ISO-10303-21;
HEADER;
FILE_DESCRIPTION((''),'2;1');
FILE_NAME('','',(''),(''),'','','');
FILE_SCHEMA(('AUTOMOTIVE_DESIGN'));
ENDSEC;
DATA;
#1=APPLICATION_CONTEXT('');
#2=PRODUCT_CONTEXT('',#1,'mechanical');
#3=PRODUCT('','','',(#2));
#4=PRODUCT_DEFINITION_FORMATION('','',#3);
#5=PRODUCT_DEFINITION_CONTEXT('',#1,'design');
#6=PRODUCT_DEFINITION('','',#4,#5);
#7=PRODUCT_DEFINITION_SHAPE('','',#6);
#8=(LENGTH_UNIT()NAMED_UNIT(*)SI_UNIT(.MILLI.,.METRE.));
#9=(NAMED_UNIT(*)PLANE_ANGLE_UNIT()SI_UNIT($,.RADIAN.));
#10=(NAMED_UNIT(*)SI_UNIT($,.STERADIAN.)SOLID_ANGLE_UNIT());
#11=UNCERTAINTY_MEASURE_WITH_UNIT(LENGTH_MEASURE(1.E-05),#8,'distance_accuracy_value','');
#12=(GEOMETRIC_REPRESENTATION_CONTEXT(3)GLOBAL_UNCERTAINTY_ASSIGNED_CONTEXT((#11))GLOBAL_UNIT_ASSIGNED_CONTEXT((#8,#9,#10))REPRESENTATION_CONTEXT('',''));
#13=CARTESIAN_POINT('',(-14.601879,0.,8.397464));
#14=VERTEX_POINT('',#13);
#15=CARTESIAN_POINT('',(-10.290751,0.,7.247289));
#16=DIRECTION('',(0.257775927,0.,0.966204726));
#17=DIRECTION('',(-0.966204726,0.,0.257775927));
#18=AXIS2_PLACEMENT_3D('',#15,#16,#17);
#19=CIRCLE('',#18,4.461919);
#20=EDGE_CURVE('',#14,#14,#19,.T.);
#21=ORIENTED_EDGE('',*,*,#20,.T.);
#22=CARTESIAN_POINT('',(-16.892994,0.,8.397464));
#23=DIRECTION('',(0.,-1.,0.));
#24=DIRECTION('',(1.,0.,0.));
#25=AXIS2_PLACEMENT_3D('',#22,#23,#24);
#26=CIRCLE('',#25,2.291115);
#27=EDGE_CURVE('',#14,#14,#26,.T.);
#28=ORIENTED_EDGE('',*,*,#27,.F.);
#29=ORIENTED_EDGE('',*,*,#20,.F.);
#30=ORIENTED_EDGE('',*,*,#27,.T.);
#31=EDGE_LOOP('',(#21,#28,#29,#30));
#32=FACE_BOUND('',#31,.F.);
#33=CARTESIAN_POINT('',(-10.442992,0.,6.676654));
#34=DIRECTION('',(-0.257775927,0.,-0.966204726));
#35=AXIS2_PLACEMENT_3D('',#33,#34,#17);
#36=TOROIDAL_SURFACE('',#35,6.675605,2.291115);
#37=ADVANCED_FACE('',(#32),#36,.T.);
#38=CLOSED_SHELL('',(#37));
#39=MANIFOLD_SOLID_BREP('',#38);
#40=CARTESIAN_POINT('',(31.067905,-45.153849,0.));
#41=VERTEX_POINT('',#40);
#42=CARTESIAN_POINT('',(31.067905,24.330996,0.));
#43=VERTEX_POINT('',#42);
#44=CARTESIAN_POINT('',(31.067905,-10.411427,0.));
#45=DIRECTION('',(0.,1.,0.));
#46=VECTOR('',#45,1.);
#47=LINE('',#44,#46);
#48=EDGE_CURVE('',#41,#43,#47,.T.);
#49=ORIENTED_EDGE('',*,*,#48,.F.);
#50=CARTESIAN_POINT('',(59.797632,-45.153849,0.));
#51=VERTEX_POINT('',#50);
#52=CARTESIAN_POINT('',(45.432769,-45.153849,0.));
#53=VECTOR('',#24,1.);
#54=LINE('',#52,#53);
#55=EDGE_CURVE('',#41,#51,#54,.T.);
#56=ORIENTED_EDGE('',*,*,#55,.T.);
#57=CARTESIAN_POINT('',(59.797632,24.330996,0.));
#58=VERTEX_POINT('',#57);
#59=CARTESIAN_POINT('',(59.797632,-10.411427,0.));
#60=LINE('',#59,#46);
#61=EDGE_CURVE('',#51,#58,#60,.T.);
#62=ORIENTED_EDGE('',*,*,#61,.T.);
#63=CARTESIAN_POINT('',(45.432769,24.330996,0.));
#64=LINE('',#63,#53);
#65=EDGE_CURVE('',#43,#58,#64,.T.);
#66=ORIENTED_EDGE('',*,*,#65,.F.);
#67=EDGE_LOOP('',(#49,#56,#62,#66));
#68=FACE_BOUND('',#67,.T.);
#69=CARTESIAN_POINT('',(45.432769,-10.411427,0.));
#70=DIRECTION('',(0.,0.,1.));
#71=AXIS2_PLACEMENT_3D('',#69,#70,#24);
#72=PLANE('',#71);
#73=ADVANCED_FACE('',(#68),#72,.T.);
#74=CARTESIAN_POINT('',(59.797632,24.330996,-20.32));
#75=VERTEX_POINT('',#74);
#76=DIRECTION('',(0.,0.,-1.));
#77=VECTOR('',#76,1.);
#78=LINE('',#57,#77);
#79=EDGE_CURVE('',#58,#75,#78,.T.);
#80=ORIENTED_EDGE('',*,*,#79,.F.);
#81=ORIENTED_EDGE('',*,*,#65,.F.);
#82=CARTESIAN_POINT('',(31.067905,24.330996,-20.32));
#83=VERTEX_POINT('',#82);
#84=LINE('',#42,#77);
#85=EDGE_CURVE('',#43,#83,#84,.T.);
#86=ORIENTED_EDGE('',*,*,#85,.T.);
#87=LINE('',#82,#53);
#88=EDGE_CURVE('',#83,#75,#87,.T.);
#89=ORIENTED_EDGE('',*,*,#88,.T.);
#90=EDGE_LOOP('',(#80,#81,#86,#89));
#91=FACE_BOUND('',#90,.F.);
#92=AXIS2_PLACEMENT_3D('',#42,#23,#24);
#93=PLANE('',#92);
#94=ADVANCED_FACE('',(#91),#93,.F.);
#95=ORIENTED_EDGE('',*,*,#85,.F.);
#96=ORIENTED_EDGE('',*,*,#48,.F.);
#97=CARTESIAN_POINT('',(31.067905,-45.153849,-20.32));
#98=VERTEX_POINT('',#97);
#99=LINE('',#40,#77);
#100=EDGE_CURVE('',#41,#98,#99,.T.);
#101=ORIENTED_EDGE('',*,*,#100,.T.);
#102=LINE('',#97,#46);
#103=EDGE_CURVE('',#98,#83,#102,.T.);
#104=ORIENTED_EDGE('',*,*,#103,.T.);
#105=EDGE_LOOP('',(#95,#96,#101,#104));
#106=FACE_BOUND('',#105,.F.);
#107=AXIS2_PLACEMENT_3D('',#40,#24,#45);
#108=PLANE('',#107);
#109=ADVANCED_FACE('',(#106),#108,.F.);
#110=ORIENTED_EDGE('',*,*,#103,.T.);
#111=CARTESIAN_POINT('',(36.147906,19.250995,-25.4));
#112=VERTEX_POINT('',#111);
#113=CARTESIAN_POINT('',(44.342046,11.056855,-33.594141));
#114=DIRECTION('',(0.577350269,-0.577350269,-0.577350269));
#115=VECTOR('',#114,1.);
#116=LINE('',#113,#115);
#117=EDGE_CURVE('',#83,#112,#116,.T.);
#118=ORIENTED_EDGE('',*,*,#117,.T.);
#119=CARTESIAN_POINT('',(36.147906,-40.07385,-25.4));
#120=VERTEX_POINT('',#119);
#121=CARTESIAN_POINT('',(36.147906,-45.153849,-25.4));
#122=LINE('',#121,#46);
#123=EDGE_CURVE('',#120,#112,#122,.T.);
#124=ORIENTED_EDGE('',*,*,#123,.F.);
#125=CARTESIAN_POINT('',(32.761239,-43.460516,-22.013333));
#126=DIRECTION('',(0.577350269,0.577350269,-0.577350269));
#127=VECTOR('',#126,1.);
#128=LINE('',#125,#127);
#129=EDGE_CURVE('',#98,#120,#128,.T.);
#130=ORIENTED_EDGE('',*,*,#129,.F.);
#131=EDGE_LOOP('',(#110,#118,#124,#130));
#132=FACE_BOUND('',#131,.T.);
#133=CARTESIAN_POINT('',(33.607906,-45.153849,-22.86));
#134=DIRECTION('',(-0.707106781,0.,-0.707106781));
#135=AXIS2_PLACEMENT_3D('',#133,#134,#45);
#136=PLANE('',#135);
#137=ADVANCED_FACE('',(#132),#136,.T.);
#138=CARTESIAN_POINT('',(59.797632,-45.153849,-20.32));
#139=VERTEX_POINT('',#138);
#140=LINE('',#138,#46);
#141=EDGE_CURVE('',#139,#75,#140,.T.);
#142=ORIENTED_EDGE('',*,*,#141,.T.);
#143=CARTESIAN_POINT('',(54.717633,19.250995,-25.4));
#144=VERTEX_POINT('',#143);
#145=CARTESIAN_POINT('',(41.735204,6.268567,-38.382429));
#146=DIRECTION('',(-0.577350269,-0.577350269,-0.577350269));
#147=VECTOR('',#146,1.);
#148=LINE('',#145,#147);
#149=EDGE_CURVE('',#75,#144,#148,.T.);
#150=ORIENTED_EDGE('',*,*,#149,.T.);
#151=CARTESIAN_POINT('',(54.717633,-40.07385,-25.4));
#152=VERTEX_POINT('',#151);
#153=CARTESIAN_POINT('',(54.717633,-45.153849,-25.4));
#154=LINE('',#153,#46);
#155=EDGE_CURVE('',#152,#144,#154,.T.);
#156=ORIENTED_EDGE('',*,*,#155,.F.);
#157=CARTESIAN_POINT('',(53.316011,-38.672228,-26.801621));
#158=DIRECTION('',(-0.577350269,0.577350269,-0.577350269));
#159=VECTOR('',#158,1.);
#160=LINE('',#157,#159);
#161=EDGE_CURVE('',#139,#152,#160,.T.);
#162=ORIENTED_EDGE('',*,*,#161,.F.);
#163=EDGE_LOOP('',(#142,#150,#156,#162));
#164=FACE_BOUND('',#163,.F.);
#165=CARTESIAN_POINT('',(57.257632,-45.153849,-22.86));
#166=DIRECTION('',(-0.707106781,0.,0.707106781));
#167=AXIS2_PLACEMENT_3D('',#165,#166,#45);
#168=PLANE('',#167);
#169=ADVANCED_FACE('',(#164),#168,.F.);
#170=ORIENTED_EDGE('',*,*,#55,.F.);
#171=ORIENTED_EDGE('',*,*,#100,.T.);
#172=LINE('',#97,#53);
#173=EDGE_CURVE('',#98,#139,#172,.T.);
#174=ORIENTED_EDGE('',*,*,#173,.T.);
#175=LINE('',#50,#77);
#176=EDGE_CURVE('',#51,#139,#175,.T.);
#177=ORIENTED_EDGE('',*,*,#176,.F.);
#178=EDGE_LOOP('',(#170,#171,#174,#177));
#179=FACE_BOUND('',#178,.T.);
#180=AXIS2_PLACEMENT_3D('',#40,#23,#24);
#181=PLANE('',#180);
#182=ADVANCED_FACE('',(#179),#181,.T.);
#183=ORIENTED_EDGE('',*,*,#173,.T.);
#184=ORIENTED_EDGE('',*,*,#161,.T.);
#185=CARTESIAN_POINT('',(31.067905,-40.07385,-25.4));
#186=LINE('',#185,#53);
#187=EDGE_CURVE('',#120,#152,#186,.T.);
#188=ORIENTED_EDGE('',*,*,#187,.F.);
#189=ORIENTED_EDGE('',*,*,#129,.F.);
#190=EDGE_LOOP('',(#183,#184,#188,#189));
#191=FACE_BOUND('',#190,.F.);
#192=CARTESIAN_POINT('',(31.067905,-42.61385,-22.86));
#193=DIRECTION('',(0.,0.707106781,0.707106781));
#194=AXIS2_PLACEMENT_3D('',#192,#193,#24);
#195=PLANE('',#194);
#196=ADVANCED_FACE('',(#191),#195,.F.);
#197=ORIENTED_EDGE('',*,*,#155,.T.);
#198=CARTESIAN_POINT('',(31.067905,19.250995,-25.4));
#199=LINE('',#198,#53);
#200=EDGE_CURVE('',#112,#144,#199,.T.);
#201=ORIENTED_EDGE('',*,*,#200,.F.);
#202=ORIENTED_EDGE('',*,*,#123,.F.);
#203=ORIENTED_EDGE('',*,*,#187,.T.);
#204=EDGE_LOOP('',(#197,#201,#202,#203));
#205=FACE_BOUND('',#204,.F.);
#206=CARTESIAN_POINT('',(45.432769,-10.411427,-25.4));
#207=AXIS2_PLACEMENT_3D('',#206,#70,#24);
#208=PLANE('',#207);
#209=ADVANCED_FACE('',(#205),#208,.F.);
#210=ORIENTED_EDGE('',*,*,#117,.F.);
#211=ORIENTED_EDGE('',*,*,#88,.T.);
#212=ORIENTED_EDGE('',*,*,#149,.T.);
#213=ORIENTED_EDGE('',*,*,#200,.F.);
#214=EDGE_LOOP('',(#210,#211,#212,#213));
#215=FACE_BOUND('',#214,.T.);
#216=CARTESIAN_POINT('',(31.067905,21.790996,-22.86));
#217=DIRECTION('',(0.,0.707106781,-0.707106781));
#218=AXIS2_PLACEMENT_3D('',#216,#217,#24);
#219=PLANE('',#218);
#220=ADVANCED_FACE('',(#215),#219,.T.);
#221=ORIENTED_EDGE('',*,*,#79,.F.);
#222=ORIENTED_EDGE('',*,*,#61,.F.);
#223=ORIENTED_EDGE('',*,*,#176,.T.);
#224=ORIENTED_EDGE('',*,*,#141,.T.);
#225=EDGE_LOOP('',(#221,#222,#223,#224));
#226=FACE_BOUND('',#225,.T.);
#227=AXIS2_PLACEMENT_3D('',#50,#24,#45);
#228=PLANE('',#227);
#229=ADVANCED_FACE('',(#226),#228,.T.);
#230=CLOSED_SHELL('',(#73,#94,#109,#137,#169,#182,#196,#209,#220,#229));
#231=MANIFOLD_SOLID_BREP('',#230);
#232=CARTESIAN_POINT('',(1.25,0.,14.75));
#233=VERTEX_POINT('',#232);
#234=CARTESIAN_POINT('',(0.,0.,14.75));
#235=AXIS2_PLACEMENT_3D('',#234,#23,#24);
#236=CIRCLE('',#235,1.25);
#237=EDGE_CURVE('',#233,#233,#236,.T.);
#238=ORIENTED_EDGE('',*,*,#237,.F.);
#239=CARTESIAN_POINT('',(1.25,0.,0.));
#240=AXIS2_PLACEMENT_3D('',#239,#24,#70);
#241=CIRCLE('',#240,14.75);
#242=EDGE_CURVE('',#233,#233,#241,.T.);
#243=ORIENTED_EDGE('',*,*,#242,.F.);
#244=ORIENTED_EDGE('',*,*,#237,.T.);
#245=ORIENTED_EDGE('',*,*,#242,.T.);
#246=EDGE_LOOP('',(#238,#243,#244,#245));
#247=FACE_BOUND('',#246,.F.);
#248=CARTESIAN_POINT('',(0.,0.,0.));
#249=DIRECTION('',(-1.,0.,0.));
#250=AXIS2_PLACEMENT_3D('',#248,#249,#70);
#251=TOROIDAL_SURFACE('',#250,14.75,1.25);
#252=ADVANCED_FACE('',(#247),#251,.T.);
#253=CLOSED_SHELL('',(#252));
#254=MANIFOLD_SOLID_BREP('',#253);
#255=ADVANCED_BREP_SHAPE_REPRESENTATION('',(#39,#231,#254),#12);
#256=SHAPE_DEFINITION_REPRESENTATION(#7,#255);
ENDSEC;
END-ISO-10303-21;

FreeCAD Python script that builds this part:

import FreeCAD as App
import Part
import Sketcher
Q = App.Units.Quantity


def edges_at(feature, points):
    """Names of the edges that pass closest to the given points."""
    edges = feature.Shape.Edges
    near = lambda p: min(range(len(edges)), key=lambda i: edges[i].distToShape(Part.Vertex(*p))[0])
    return sorted({f"Edge{near(p) + 1}" for p in points})

doc = App.newDocument("Part")
body = doc.addObject("PartDesign::Body", "Body")

# Sketch on XZ plane
sketch1 = doc.addObject("Sketcher::SketchObject", "Sketch")
body.addObject(sketch1)
sketch1.AttachmentSupport = (doc.XZ_Plane, [""])
sketch1.MapMode = "FlatFace"
sketch1.addGeometry(Part.Circle(App.Vector(0, 14.8, 0), App.Vector(0, 0, 1), 1.2), False)
sketch1.addConstraint(Sketcher.Constraint("PointOnObject", 0, 3, -2))
sketch1.addConstraint(Sketcher.Constraint("Diameter", 0, Q("2.5 mm")))
sketch1.addConstraint(Sketcher.Constraint("DistanceY", -1, 1, 0, 3, Q("14.75 mm")))
revolution = doc.addObject("PartDesign::Revolution", "Revolution")
body.addObject(revolution)
revolution.Profile = sketch1
revolution.ReferenceAxis = (sketch1, ["H_Axis"])
revolution.Angle = 360
body2 = doc.addObject("PartDesign::Body", "Body001")

# Sketch on XZ plane
sketch2 = doc.addObject("Sketcher::SketchObject", "Sketch001")
body2.addObject(sketch2)
sketch2.AttachmentSupport = (doc.getObject("XZ_Plane001"), [""])
sketch2.MapMode = "FlatFace"
sketch2.addGeometry(Part.Circle(App.Vector(-16.9, 8.4, 0), App.Vector(0, 0, 1), 2.3), False)
sketch2.addGeometry(Part.LineSegment(App.Vector(-10.4, 6.7, 0), App.Vector(-7.9, 16.3, 0)), True)  # axis
sketch2.addConstraint(Sketcher.Constraint("Diameter", 0, Q("4.58223 mm")))
sketch2.addConstraint(Sketcher.Constraint("Distance", 1, Q("10 mm")))
sketch2.addConstraint(Sketcher.Constraint("DistanceY", -1, 1, 1, 2, Q("16.338701 mm")))
sketch2.addConstraint(Sketcher.Constraint("DistanceX", 0, 3, 1, 1, Q("6.450002 mm")))
sketch2.addConstraint(Sketcher.Constraint("DistanceY", 1, 1, 0, 3, Q("1.72081 mm")))
sketch2.addConstraint(Sketcher.Constraint("DistanceX", 1, 1, 1, 2, Q("2.577759 mm")))
sketch2.addConstraint(Sketcher.Constraint("DistanceX", 0, 3, -1, 1, Q("16.892994 mm")))
revolution2 = doc.addObject("PartDesign::Revolution", "Revolution001")
body2.addObject(revolution2)
revolution2.Profile = sketch2
revolution2.ReferenceAxis = (sketch2, ["Axis0"])
revolution2.Angle = 360
body3 = doc.addObject("PartDesign::Body", "Body002")

# Sketch on XY plane
sketch3 = doc.addObject("Sketcher::SketchObject", "Sketch002")
body3.addObject(sketch3)
sketch3.AttachmentSupport = (doc.getObject("XY_Plane002"), [""])
sketch3.MapMode = "FlatFace"
sketch3.addGeometry(Part.LineSegment(App.Vector(31, 24, 0), App.Vector(31, -45, 0)), False)
sketch3.addGeometry(Part.LineSegment(App.Vector(31, -45, 0), App.Vector(60, -45, 0)), False)
sketch3.addGeometry(Part.LineSegment(App.Vector(60, -45, 0), App.Vector(60, 24, 0)), False)
sketch3.addGeometry(Part.LineSegment(App.Vector(60, 24, 0), App.Vector(31, 24, 0)), False)
sketch3.addConstraint(Sketcher.Constraint("Coincident", 0, 2, 1, 1))
sketch3.addConstraint(Sketcher.Constraint("Coincident", 1, 2, 2, 1))
sketch3.addConstraint(Sketcher.Constraint("Coincident", 2, 2, 3, 1))
sketch3.addConstraint(Sketcher.Constraint("Coincident", 3, 2, 0, 1))
sketch3.addConstraint(Sketcher.Constraint("Vertical", 0))
sketch3.addConstraint(Sketcher.Constraint("Horizontal", 1))
sketch3.addConstraint(Sketcher.Constraint("Vertical", 2))
sketch3.addConstraint(Sketcher.Constraint("Horizontal", 3))
sketch3.addConstraint(Sketcher.Constraint("DistanceX", 1, 1, 1, 2, Q("28.729727 mm")))
sketch3.addConstraint(Sketcher.Constraint("DistanceY", 0, 2, 0, 1, Q("69.484845 mm")))
sketch3.addConstraint(Sketcher.Constraint("DistanceY", 0, 2, -1, 1, Q("45.153849 mm")))
sketch3.addConstraint(Sketcher.Constraint("DistanceX", -1, 1, 0, 2, Q("31.067905 mm")))
pad1 = doc.addObject("PartDesign::Pad", "Pad")
body3.addObject(pad1)
pad1.Profile = sketch3
pad1.Length = Q("1 in")
pad1.Reversed = True
doc.recompute()

chamfer = doc.addObject("PartDesign::Chamfer", "Chamfer")
body3.addObject(chamfer)
chamfer.Base = (pad1, edges_at(pad1, [
    (59.798, -10.411, -25.4),
    (45.433, -45.154, -25.4),
    (45.433, 24.331, -25.4),
    (31.068, -10.411, -25.4),
]))
chamfer.Size = Q("0.2 in")

doc.recompute()
